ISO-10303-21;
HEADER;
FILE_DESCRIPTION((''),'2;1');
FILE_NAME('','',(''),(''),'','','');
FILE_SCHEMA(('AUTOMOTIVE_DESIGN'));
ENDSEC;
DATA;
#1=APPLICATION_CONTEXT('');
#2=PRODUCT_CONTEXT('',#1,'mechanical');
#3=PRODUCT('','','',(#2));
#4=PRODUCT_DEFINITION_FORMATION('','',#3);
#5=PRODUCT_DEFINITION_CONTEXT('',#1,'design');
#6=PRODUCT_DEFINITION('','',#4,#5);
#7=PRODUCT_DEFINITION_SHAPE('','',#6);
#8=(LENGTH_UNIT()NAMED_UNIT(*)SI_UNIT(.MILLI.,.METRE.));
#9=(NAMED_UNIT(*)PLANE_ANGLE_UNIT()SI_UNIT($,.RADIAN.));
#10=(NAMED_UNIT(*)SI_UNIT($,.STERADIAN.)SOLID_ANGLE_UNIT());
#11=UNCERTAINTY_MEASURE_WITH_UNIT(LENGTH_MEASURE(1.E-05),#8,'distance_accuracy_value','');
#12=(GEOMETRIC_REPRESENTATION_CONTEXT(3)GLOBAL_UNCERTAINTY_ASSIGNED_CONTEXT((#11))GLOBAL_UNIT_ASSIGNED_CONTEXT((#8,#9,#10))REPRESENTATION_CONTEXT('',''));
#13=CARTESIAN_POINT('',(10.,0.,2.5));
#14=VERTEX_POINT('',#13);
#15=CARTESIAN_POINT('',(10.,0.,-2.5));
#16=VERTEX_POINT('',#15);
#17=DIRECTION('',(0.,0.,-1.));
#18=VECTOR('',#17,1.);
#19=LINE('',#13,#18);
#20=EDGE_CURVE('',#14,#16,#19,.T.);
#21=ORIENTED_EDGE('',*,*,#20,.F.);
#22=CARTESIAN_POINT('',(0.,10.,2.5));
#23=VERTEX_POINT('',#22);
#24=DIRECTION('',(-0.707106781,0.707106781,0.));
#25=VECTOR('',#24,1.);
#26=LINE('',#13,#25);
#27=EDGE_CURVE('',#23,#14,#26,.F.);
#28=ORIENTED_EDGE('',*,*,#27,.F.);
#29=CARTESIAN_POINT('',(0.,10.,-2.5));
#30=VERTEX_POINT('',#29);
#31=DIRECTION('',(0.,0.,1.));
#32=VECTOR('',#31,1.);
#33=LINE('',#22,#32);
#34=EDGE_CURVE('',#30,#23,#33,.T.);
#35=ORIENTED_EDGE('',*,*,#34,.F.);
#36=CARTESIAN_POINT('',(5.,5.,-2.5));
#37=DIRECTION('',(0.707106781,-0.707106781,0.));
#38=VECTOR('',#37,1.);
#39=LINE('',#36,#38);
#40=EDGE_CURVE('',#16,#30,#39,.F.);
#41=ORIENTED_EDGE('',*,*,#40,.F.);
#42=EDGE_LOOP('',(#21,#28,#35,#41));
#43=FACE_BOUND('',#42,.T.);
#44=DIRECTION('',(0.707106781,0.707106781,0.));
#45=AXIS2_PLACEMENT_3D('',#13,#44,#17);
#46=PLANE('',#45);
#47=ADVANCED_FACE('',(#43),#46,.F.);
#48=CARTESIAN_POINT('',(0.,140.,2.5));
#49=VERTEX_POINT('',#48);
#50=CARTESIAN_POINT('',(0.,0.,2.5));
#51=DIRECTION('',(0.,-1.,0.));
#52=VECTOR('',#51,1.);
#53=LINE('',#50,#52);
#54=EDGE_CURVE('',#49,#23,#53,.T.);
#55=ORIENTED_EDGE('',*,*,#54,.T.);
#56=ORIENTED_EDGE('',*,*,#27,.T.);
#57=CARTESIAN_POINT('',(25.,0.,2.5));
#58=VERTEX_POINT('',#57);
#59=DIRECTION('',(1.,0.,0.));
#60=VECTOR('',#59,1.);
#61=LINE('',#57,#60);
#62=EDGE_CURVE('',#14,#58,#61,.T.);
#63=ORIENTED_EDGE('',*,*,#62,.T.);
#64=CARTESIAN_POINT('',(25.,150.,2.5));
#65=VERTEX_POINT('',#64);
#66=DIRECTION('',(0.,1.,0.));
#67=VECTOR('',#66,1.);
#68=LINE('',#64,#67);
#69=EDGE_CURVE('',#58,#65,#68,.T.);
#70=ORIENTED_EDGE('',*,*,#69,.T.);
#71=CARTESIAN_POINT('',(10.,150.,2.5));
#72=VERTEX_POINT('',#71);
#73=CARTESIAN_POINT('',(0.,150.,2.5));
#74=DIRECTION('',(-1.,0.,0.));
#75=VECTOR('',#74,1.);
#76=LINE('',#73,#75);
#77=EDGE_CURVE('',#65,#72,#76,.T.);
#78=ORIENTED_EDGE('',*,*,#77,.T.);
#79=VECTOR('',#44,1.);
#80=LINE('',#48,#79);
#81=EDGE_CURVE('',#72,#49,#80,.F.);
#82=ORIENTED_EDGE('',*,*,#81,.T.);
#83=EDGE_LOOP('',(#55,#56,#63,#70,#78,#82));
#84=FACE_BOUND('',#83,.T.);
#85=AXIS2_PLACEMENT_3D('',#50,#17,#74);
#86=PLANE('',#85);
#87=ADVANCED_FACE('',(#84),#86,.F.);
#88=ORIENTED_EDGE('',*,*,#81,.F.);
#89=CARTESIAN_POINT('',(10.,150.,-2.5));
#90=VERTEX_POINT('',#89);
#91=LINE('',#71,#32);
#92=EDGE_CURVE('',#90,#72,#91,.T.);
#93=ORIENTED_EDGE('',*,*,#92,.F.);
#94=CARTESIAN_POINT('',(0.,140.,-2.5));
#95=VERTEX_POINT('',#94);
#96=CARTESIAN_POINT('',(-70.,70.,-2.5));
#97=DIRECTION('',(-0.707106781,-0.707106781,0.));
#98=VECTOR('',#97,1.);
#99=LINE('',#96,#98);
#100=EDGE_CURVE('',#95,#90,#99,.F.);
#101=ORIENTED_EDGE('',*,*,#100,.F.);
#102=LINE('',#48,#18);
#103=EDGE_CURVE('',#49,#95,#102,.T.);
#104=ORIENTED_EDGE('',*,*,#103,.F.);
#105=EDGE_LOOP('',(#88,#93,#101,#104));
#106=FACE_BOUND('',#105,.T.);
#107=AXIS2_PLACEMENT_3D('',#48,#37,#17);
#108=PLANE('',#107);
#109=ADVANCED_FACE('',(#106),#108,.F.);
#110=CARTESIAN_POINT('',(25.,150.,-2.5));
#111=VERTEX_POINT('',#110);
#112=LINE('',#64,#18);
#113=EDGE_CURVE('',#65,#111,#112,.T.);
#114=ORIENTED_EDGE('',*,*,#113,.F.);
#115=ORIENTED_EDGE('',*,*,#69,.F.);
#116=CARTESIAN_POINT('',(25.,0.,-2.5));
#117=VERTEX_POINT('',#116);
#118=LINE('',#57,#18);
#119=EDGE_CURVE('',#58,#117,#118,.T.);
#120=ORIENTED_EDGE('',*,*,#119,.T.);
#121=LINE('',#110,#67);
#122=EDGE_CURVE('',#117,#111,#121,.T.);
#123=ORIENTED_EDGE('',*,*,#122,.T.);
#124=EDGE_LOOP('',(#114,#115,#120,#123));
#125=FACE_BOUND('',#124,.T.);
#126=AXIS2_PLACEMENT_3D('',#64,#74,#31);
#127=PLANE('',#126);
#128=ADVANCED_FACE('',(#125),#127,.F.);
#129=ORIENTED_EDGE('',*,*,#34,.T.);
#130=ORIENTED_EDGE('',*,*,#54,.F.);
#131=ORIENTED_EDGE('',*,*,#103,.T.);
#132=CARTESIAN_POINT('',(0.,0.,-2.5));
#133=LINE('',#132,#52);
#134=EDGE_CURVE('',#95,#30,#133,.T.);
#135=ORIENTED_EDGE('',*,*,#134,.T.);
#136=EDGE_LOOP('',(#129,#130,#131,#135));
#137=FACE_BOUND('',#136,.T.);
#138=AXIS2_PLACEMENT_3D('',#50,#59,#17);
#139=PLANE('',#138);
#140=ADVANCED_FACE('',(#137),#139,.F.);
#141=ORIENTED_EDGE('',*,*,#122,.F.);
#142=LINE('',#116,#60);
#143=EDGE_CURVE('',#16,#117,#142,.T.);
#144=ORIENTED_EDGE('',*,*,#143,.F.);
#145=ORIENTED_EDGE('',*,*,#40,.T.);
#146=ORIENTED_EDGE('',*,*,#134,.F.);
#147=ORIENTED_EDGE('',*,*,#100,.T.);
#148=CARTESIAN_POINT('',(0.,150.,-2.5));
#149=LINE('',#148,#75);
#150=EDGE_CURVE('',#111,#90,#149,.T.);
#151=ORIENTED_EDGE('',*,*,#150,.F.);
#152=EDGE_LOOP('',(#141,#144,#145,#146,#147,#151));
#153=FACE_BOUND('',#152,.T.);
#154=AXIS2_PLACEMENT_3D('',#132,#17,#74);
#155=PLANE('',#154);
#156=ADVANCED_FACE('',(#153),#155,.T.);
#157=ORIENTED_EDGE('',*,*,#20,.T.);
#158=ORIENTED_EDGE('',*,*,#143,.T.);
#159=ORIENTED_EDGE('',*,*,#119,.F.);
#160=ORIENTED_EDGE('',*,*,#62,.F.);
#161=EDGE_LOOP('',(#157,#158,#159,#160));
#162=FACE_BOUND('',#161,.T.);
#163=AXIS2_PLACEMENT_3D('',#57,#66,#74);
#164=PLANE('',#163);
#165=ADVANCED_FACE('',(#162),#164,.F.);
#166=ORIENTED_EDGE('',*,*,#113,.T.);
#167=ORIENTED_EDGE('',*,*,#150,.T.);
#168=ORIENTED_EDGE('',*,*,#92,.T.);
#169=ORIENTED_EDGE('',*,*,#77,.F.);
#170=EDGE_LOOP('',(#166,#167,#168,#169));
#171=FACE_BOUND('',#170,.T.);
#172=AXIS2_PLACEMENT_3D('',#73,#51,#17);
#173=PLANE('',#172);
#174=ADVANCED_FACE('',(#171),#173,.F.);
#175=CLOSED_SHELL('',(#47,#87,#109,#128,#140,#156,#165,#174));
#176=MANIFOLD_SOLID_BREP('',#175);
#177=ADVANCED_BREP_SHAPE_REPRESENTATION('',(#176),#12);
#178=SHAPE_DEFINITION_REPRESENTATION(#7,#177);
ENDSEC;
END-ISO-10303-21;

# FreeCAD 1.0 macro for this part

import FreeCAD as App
import Part
import Sketcher


def edges_at(feature, points):
    """Names of the edges that pass closest to the given points."""
    edges = feature.Shape.Edges
    near = lambda p: min(range(len(edges)), key=lambda i: edges[i].distToShape(Part.Vertex(*p))[0])
    return sorted({f"Edge{near(p) + 1}" for p in points})

doc = App.newDocument("Part")
body = doc.addObject("PartDesign::Body", "Body")

# Sketch on XY plane
sketch1 = body.newObject("Sketcher::SketchObject", "Sketch")
sketch1.AttachmentSupport = (doc.getObject("XY_Plane"), [""])
sketch1.MapMode = "FlatFace"
sketch1.addGeometry([
    Part.LineSegment(App.Vector(0, 150, 0), App.Vector(0, 0, 0)),
    Part.LineSegment(App.Vector(0, 0, 0), App.Vector(25, 0, 0)),
    Part.LineSegment(App.Vector(25, 0, 0), App.Vector(25, 150, 0)),
    Part.LineSegment(App.Vector(25, 150, 0), App.Vector(0, 150, 0)),
], False)
sketch1.addConstraint([
    Sketcher.Constraint("Coincident", 0, 2, 1, 1),
    Sketcher.Constraint("Coincident", 1, 2, 2, 1),
    Sketcher.Constraint("Coincident", 2, 2, 3, 1),
    Sketcher.Constraint("Coincident", 3, 2, 0, 1),
    Sketcher.Constraint("Vertical", 0),
    Sketcher.Constraint("Horizontal", 1),
    Sketcher.Constraint("Vertical", 2),
    Sketcher.Constraint("Horizontal", 3),
    Sketcher.Constraint("Coincident", 0, 2, -1, 1),
    Sketcher.Constraint("DistanceX", 1, 1, 1, 2, 25.0),
    Sketcher.Constraint("DistanceY", 0, 2, 0, 1, 150.0),
])
pad1 = body.newObject("PartDesign::Pad", "Pad")
pad1.Profile = sketch1
pad1.Length = 5
pad1.Midplane = True
doc.recompute()

chamfer = body.newObject("PartDesign::Chamfer", "Chamfer")
chamfer.Base = (pad1, edges_at(pad1, [(0, 0, 0), (0, 150, 0)]))
chamfer.Size = 10

doc.recompute()
